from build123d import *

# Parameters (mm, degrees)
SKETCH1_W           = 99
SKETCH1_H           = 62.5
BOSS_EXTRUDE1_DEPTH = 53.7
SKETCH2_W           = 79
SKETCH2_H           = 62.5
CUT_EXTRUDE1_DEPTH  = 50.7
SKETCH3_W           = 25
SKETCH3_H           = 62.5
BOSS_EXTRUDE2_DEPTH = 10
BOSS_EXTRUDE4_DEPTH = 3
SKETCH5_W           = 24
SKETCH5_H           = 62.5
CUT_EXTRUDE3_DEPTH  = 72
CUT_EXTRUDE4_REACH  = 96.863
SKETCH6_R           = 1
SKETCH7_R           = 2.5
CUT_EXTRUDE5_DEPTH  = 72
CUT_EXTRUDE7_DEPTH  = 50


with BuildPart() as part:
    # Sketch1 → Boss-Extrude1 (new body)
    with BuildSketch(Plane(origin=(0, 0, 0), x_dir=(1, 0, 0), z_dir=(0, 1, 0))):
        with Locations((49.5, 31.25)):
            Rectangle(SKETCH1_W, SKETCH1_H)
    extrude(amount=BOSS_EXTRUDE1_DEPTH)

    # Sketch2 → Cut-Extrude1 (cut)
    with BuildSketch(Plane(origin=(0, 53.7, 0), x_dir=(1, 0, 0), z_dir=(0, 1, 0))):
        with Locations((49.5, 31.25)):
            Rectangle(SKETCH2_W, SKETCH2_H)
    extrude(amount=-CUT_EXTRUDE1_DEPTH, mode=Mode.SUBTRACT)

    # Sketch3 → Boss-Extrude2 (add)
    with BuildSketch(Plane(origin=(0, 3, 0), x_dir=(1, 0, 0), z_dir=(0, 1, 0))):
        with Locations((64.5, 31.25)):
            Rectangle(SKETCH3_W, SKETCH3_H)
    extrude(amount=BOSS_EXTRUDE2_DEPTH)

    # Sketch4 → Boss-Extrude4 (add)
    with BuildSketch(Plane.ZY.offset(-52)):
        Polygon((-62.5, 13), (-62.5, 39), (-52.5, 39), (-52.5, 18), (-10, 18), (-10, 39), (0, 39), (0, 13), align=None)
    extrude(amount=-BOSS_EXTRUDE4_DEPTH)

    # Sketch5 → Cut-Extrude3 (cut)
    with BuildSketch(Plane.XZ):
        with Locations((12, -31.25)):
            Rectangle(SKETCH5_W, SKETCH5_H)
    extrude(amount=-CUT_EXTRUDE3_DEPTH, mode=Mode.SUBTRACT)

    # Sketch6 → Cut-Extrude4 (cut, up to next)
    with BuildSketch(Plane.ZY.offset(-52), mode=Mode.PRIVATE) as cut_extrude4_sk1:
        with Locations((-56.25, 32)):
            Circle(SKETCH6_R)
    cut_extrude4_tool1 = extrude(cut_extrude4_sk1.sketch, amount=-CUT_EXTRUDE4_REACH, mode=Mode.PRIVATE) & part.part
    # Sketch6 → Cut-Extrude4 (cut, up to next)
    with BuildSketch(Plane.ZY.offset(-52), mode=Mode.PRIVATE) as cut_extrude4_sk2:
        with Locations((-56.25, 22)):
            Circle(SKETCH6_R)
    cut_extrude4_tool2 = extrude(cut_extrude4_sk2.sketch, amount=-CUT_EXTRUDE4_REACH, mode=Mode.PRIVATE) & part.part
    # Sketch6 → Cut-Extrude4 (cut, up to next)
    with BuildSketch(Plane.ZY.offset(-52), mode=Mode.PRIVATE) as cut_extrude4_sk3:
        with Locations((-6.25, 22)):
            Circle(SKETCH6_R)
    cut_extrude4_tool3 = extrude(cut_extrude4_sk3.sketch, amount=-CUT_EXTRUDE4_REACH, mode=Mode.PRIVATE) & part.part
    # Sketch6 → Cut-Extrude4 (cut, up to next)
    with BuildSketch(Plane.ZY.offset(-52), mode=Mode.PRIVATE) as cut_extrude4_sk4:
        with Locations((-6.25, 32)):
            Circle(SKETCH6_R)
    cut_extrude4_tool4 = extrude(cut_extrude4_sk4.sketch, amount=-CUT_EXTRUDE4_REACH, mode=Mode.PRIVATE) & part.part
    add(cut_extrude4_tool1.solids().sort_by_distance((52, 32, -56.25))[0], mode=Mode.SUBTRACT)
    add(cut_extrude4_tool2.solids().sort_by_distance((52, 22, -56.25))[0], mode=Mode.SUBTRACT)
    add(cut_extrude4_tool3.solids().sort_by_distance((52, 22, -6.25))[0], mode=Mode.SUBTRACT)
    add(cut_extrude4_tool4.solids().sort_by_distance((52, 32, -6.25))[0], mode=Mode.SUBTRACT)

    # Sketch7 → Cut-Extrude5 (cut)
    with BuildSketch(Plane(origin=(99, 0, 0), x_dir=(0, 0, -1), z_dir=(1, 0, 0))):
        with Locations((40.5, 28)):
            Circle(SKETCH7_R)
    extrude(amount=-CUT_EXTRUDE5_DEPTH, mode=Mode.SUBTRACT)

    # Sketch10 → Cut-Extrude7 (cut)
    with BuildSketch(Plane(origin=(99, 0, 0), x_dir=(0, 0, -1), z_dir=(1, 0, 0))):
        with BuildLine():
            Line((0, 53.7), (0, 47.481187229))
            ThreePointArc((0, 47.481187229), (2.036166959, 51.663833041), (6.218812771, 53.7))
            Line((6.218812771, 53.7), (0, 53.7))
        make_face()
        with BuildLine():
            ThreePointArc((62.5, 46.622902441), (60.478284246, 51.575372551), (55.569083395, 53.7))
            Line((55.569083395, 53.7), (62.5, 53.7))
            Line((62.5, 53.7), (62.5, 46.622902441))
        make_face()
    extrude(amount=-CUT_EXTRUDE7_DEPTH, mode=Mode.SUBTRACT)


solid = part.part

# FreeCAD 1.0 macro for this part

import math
import FreeCAD as App
import Part
import Sketcher

V = App.Vector
Q = App.Units.Quantity

doc = App.newDocument("Part")
body = doc.addObject("PartDesign::Body", "Body")

sketch1 = body.newObject("Sketcher::SketchObject", "Sketch")
sketch1.AttachmentSupport = (doc.getObject("XZ_Plane"), [""])
sketch1.MapMode = "FlatFace"
sketch1.addGeometry([
    Part.LineSegment(V(0, -62.5, 0), V(0, 0, 0)),
    Part.LineSegment(V(0, 0, 0), V(99, 0, 0)),
    Part.LineSegment(V(99, 0, 0), V(99, -62.5, 0)),
    Part.LineSegment(V(99, -62.5, 0), V(0, -62.5, 0)),
], False)
sketch1.addConstraint([
    Sketcher.Constraint("Coincident", 0, 2, 1, 1),
    Sketcher.Constraint("Coincident", 1, 2, 2, 1),
    Sketcher.Constraint("Coincident", 2, 2, 3, 1),
    Sketcher.Constraint("Coincident", 3, 2, 0, 1),
    Sketcher.Constraint("Vertical", 0),
    Sketcher.Constraint("Horizontal", 1),
    Sketcher.Constraint("Vertical", 2),
    Sketcher.Constraint("Horizontal", 3),
    Sketcher.Constraint("Coincident", 0, 2, -1, 1),
    Sketcher.Constraint("DistanceX", 1, 1, 1, 2, Q("99 mm")),
    Sketcher.Constraint("DistanceY", 0, 1, 0, 2, Q("62.5 mm")),
])
pad1 = body.newObject("PartDesign::Pad", "Pad")
pad1.Profile = sketch1
pad1.Length = 53.7
pad1.Reversed = True

sketch2 = body.newObject("Sketcher::SketchObject", "Sketch001")
sketch2.AttachmentSupport = (doc.getObject("XZ_Plane"), [""])
sketch2.MapMode = "FlatFace"
sketch2.AttachmentOffset = App.Placement(V(0, 0, -53.7), App.Rotation())
sketch2.addGeometry([
    Part.LineSegment(V(10, -62.5, 0), V(10, 0, 0)),
    Part.LineSegment(V(10, 0, 0), V(89, 0, 0)),
    Part.LineSegment(V(89, 0, 0), V(89, -62.5, 0)),
    Part.LineSegment(V(89, -62.5, 0), V(10, -62.5, 0)),
], False)
sketch2.addConstraint([
    Sketcher.Constraint("Coincident", 0, 2, 1, 1),
    Sketcher.Constraint("Coincident", 1, 2, 2, 1),
    Sketcher.Constraint("Coincident", 2, 2, 3, 1),
    Sketcher.Constraint("Coincident", 3, 2, 0, 1),
    Sketcher.Constraint("Vertical", 0),
    Sketcher.Constraint("Horizontal", 1),
    Sketcher.Constraint("Vertical", 2),
    Sketcher.Constraint("Horizontal", 3),
    Sketcher.Constraint("PointOnObject", 0, 2, -1),
    Sketcher.Constraint("DistanceX", 1, 1, 1, 2, Q("79 mm")),
    Sketcher.Constraint("DistanceY", 0, 1, 0, 2, Q("62.5 mm")),
    Sketcher.Constraint("DistanceX", -1, 1, 0, 2, Q("10 mm")),
])
pocket1 = body.newObject("PartDesign::Pocket", "Pocket")
pocket1.Profile = sketch2
pocket1.Length = 50.7
pocket1.Reversed = True

sketch3 = body.newObject("Sketcher::SketchObject", "Sketch002")
sketch3.AttachmentSupport = (doc.getObject("XZ_Plane"), [""])
sketch3.MapMode = "FlatFace"
sketch3.AttachmentOffset = App.Placement(V(0, 0, -3), App.Rotation())
sketch3.addGeometry([
    Part.LineSegment(V(52, -62.5, 0), V(52, 0, 0)),
    Part.LineSegment(V(52, 0, 0), V(77, 0, 0)),
    Part.LineSegment(V(77, 0, 0), V(77, -62.5, 0)),
    Part.LineSegment(V(77, -62.5, 0), V(52, -62.5, 0)),
], False)
sketch3.addConstraint([
    Sketcher.Constraint("Coincident", 0, 2, 1, 1),
    Sketcher.Constraint("Coincident", 1, 2, 2, 1),
    Sketcher.Constraint("Coincident", 2, 2, 3, 1),
    Sketcher.Constraint("Coincident", 3, 2, 0, 1),
    Sketcher.Constraint("Vertical", 0),
    Sketcher.Constraint("Horizontal", 1),
    Sketcher.Constraint("Vertical", 2),
    Sketcher.Constraint("Horizontal", 3),
    Sketcher.Constraint("PointOnObject", 0, 2, -1),
    Sketcher.Constraint("DistanceX", 1, 1, 1, 2, Q("25 mm")),
    Sketcher.Constraint("DistanceY", 0, 1, 0, 2, Q("62.5 mm")),
    Sketcher.Constraint("DistanceX", -1, 1, 0, 2, Q("52 mm")),
])
pad2 = body.newObject("PartDesign::Pad", "Pad001")
pad2.Profile = sketch3
pad2.Length = 10
pad2.Reversed = True

sketch4 = body.newObject("Sketcher::SketchObject", "Sketch003")
sketch4.AttachmentSupport = (doc.getObject("YZ_Plane"), [""])
sketch4.MapMode = "FlatFace"
sketch4.AttachmentOffset = App.Placement(V(0, 0, 52), App.Rotation())
sketch4.addGeometry([
    Part.LineSegment(V(39, -62.5, 0), V(13, -62.5, 0)),
    Part.LineSegment(V(13, -62.5, 0), V(13, 0, 0)),
    Part.LineSegment(V(13, 0, 0), V(39, 0, 0)),
    Part.LineSegment(V(39, 0, 0), V(39, -10, 0)),
    Part.LineSegment(V(39, -10, 0), V(18, -10, 0)),
    Part.LineSegment(V(18, -10, 0), V(18, -52.5, 0)),
    Part.LineSegment(V(18, -52.5, 0), V(39, -52.5, 0)),
    Part.LineSegment(V(39, -52.5, 0), V(39, -62.5, 0)),
], False)
sketch4.addConstraint([
    Sketcher.Constraint("Coincident", 0, 2, 1, 1),
    Sketcher.Constraint("Coincident", 1, 2, 2, 1),
    Sketcher.Constraint("Coincident", 2, 2, 3, 1),
    Sketcher.Constraint("Coincident", 3, 2, 4, 1),
    Sketcher.Constraint("Coincident", 4, 2, 5, 1),
    Sketcher.Constraint("Coincident", 5, 2, 6, 1),
    Sketcher.Constraint("Coincident", 6, 2, 7, 1),
    Sketcher.Constraint("Coincident", 7, 2, 0, 1),
    Sketcher.Constraint("Horizontal", 0),
    Sketcher.Constraint("Vertical", 1),
    Sketcher.Constraint("Horizontal", 2),
    Sketcher.Constraint("Vertical", 3),
    Sketcher.Constraint("Horizontal", 4),
    Sketcher.Constraint("Vertical", 5),
    Sketcher.Constraint("Horizontal", 6),
    Sketcher.Constraint("Vertical", 7),
    Sketcher.Constraint("PointOnObject", 1, 2, -1),
    Sketcher.Constraint("Vertical", 3, 2, 6, 2),
    Sketcher.Constraint("Equal", 3, 7),
    Sketcher.Constraint("DistanceX", 0, 2, 0, 1, Q("26 mm")),
    Sketcher.Constraint("DistanceX", 4, 2, 4, 1, Q("21 mm")),
    Sketcher.Constraint("DistanceY", 3, 2, 3, 1, Q("10 mm")),
    Sketcher.Constraint("DistanceY", 1, 1, 1, 2, Q("62.5 mm")),
    Sketcher.Constraint("DistanceX", -1, 1, 0, 2, Q("13 mm")),
])
pad3 = body.newObject("PartDesign::Pad", "Pad002")
pad3.Profile = sketch4
pad3.Length = 3

sketch5 = body.newObject("Sketcher::SketchObject", "Sketch004")
sketch5.AttachmentSupport = (doc.getObject("XZ_Plane"), [""])
sketch5.MapMode = "FlatFace"
sketch5.addGeometry([
    Part.LineSegment(V(0, 0, 0), V(0, -62.5, 0)),
    Part.LineSegment(V(0, -62.5, 0), V(24, -62.5, 0)),
    Part.LineSegment(V(24, -62.5, 0), V(24, 0, 0)),
    Part.LineSegment(V(24, 0, 0), V(0, 0, 0)),
], False)
sketch5.addConstraint([
    Sketcher.Constraint("Coincident", 0, 2, 1, 1),
    Sketcher.Constraint("Coincident", 1, 2, 2, 1),
    Sketcher.Constraint("Coincident", 2, 2, 3, 1),
    Sketcher.Constraint("Coincident", 3, 2, 0, 1),
    Sketcher.Constraint("Vertical", 0),
    Sketcher.Constraint("Horizontal", 1),
    Sketcher.Constraint("Vertical", 2),
    Sketcher.Constraint("Horizontal", 3),
    Sketcher.Constraint("Coincident", 3, 2, -1, 1),
    Sketcher.Constraint("DistanceX", 1, 1, 1, 2, Q("24 mm")),
    Sketcher.Constraint("DistanceY", 0, 2, 0, 1, Q("62.5 mm")),
])
pocket2 = body.newObject("PartDesign::Pocket", "Pocket001")
pocket2.Profile = sketch5
pocket2.Length = 72

sketch6 = body.newObject("Sketcher::SketchObject", "Sketch005")
sketch6.AttachmentSupport = (doc.getObject("YZ_Plane"), [""])
sketch6.MapMode = "FlatFace"
sketch6.AttachmentOffset = App.Placement(V(0, 0, 52), App.Rotation())
sketch6.addGeometry(Part.Circle(V(32, -56.25, 0), V(0, 0, 1), 1), False)
sketch6.addConstraint([
    Sketcher.Constraint("Diameter", 0, Q("2 mm")),
    Sketcher.Constraint("DistanceX", -1, 1, 0, 3, Q("32 mm")),
    Sketcher.Constraint("DistanceY", 0, 3, -1, 1, Q("56.25 mm")),
])
pocket3 = body.newObject("PartDesign::Pocket", "Pocket002")
pocket3.Profile = sketch6
pocket3.Type = "UpToFirst"
pocket3.Reversed = True

sketch7 = body.newObject("Sketcher::SketchObject", "Sketch006")
sketch7.AttachmentSupport = (doc.getObject("YZ_Plane"), [""])
sketch7.MapMode = "FlatFace"
sketch7.AttachmentOffset = App.Placement(V(0, 0, 52), App.Rotation())
sketch7.addGeometry(Part.Circle(V(22, -56.25, 0), V(0, 0, 1), 1), False)
sketch7.addConstraint([
    Sketcher.Constraint("Diameter", 0, Q("2 mm")),
    Sketcher.Constraint("DistanceX", -1, 1, 0, 3, Q("22 mm")),
    Sketcher.Constraint("DistanceY", 0, 3, -1, 1, Q("56.25 mm")),
])
pocket4 = body.newObject("PartDesign::Pocket", "Pocket003")
pocket4.Profile = sketch7
pocket4.Type = "UpToFirst"
pocket4.Reversed = True

sketch8 = body.newObject("Sketcher::SketchObject", "Sketch007")
sketch8.AttachmentSupport = (doc.getObject("YZ_Plane"), [""])
sketch8.MapMode = "FlatFace"
sketch8.AttachmentOffset = App.Placement(V(0, 0, 52), App.Rotation())
sketch8.addGeometry(Part.Circle(V(22, -6.25, 0), V(0, 0, 1), 1), False)
sketch8.addConstraint([
    Sketcher.Constraint("Diameter", 0, Q("2 mm")),
    Sketcher.Constraint("DistanceX", -1, 1, 0, 3, Q("22 mm")),
    Sketcher.Constraint("DistanceY", 0, 3, -1, 1, Q("6.25 mm")),
])
pocket5 = body.newObject("PartDesign::Pocket", "Pocket004")
pocket5.Profile = sketch8
pocket5.Type = "UpToFirst"
pocket5.Reversed = True

sketch9 = body.newObject("Sketcher::SketchObject", "Sketch008")
sketch9.AttachmentSupport = (doc.getObject("YZ_Plane"), [""])
sketch9.MapMode = "FlatFace"
sketch9.AttachmentOffset = App.Placement(V(0, 0, 52), App.Rotation())
sketch9.addGeometry(Part.Circle(V(32, -6.25, 0), V(0, 0, 1), 1), False)
sketch9.addConstraint([
    Sketcher.Constraint("Diameter", 0, Q("2 mm")),
    Sketcher.Constraint("DistanceX", -1, 1, 0, 3, Q("32 mm")),
    Sketcher.Constraint("DistanceY", 0, 3, -1, 1, Q("6.25 mm")),
])
pocket6 = body.newObject("PartDesign::Pocket", "Pocket005")
pocket6.Profile = sketch9
pocket6.Type = "UpToFirst"
pocket6.Reversed = True

sketch10 = body.newObject("Sketcher::SketchObject", "Sketch009")
sketch10.AttachmentSupport = (doc.getObject("YZ_Plane"), [""])
sketch10.MapMode = "FlatFace"
sketch10.AttachmentOffset = App.Placement(V(0, 0, 99), App.Rotation())
sketch10.addGeometry(Part.Circle(V(28, -40.5, 0), V(0, 0, 1), 2.5), False)
sketch10.addConstraint([
    Sketcher.Constraint("Diameter", 0, Q("5 mm")),
    Sketcher.Constraint("DistanceX", -1, 1, 0, 3, Q("28 mm")),
    Sketcher.Constraint("DistanceY", 0, 3, -1, 1, Q("40.5 mm")),
])
pocket7 = body.newObject("PartDesign::Pocket", "Pocket006")
pocket7.Profile = sketch10
pocket7.Length = 72

sketch11 = body.newObject("Sketcher::SketchObject", "Sketch010")
sketch11.AttachmentSupport = (doc.getObject("YZ_Plane"), [""])
sketch11.MapMode = "FlatFace"
sketch11.AttachmentOffset = App.Placement(V(0, 0, 99), App.Rotation())
sketch11.addGeometry([
    Part.LineSegment(V(53.7, 0, 0), V(47.481187, 0, 0)),
    Part.ArcOfCircle(Part.Circle(V(46.622902, -7.077098, 0), V(0, 0, 1), 7.128952), math.radians(6.914856), math.radians(83.085144)),
    Part.LineSegment(V(53.7, -6.218813, 0), V(53.7, 0, 0)),
    Part.ArcOfCircle(Part.Circle(V(46.62157, -55.42, 0), V(0, 0, 1), 7.08), math.radians(-89.989215), math.radians(-1.206564)),
    Part.LineSegment(V(46.622902, -62.5, 0), V(53.7, -62.5, 0)),
    Part.LineSegment(V(53.7, -62.5, 0), V(53.7, -55.569083, 0)),
], False)
sketch11.addConstraint([
    Sketcher.Constraint("Coincident", 0, 2, 1, 2),
    Sketcher.Constraint("Coincident", 1, 1, 2, 1),
    Sketcher.Constraint("Coincident", 2, 2, 0, 1),
    Sketcher.Constraint("Coincident", 3, 1, 4, 1),
    Sketcher.Constraint("Coincident", 4, 2, 5, 1),
    Sketcher.Constraint("Coincident", 5, 2, 3, 2),
    Sketcher.Constraint("Horizontal", 0),
    Sketcher.Constraint("Vertical", 2),
    Sketcher.Constraint("Horizontal", 4),
    Sketcher.Constraint("Vertical", 5),
    Sketcher.Constraint("PointOnObject", 0, 2, -1),
    Sketcher.Constraint("Vertical", 1, 3, 3, 1),
    Sketcher.Constraint("Vertical", 2, 2, 4, 2),
    Sketcher.Constraint("Equal", 0, 2),
    Sketcher.Constraint("Radius", 3, Q("7.08 mm")),
    Sketcher.Constraint("DistanceX", -1, 1, 1, 1, Q("53.7 mm")),
    Sketcher.Constraint("DistanceY", 3, 1, -1, 1, Q("62.5 mm")),
    Sketcher.Constraint("Radius", 1, Q("7.128952 mm")),
    Sketcher.Constraint("DistanceX", 0, 2, 0, 1, Q("6.218813 mm")),
    Sketcher.Constraint("DistanceY", 5, 1, 5, 2, Q("6.930917 mm")),
])
pocket8 = body.newObject("PartDesign::Pocket", "Pocket007")
pocket8.Profile = sketch11
pocket8.Length = 50

doc.recompute()
